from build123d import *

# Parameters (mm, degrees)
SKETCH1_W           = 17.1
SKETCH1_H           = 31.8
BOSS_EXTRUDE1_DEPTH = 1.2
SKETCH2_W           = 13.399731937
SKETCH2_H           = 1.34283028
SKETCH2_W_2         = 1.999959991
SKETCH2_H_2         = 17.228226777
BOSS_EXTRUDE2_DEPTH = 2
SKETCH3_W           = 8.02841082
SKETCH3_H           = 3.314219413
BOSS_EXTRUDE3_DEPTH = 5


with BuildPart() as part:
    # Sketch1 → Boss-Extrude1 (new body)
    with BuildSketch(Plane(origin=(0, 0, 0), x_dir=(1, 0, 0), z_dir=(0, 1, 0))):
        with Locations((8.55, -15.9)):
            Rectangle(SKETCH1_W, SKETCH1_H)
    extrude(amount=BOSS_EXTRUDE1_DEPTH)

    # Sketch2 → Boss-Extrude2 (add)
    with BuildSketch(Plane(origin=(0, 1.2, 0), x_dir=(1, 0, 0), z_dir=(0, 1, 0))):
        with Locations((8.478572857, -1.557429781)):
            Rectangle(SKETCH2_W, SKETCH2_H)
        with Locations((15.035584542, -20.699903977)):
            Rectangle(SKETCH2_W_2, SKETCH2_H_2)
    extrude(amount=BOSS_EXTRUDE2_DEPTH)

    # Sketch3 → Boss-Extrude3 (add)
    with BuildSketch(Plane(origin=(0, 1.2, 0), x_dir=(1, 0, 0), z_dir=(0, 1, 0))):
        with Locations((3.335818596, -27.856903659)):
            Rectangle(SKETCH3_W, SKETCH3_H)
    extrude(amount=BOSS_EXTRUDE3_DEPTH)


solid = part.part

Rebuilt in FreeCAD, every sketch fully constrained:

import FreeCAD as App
import Part
import Sketcher

doc = App.newDocument("Part")
body = doc.addObject("PartDesign::Body", "Body")

# Sketch on XZ plane
sketch1 = body.newObject("Sketcher::SketchObject", "Sketch")
sketch1.AttachmentSupport = (doc.getObject("XZ_Plane"), [""])
sketch1.MapMode = "FlatFace"
sketch1.addGeometry(Part.LineSegment(App.Vector(0, 0, 0), App.Vector(0, 31.8, 0)), False)
sketch1.addGeometry(Part.LineSegment(App.Vector(0, 31.8, 0), App.Vector(17.1, 31.8, 0)), False)
sketch1.addGeometry(Part.LineSegment(App.Vector(17.1, 31.8, 0), App.Vector(17.1, 0, 0)), False)
sketch1.addGeometry(Part.LineSegment(App.Vector(17.1, 0, 0), App.Vector(0, 0, 0)), False)
sketch1.addConstraint(Sketcher.Constraint("Coincident", 0, 2, 1, 1))
sketch1.addConstraint(Sketcher.Constraint("Coincident", 1, 2, 2, 1))
sketch1.addConstraint(Sketcher.Constraint("Coincident", 2, 2, 3, 1))
sketch1.addConstraint(Sketcher.Constraint("Coincident", 3, 2, 0, 1))
sketch1.addConstraint(Sketcher.Constraint("Vertical", 0))
sketch1.addConstraint(Sketcher.Constraint("Horizontal", 1))
sketch1.addConstraint(Sketcher.Constraint("Vertical", 2))
sketch1.addConstraint(Sketcher.Constraint("Horizontal", 3))
sketch1.addConstraint(Sketcher.Constraint("Coincident", 3, 2, -1, 1))
sketch1.addConstraint(Sketcher.Constraint("DistanceX", 1, 1, 1, 2, 17.1))
sketch1.addConstraint(Sketcher.Constraint("DistanceY", 0, 1, 0, 2, 31.8))
pad1 = body.newObject("PartDesign::Pad", "Pad")
pad1.Profile = sketch1
pad1.Length = 1.2
pad1.Reversed = True

# Sketch on XZ plane
sketch2 = body.newObject("Sketcher::SketchObject", "Sketch001")
sketch2.AttachmentSupport = (doc.getObject("XZ_Plane"), [""])
sketch2.MapMode = "FlatFace"
sketch2.AttachmentOffset = App.Placement(App.Vector(0, 0, -1.2), App.Rotation())
sketch2.addGeometry(Part.LineSegment(App.Vector(1.778707, 0.886015, 0), App.Vector(1.778707, 2.228845, 0)), False)
sketch2.addGeometry(Part.LineSegment(App.Vector(1.778707, 2.228845, 0), App.Vector(15.178439, 2.228845, 0)), False)
sketch2.addGeometry(Part.LineSegment(App.Vector(15.178439, 2.228845, 0), App.Vector(15.178439, 0.886015, 0)), False)
sketch2.addGeometry(Part.LineSegment(App.Vector(15.178439, 0.886015, 0), App.Vector(1.778707, 0.886015, 0)), False)
sketch2.addGeometry(Part.LineSegment(App.Vector(14.035605, 12.085791, 0), App.Vector(14.035605, 29.314017, 0)), False)
sketch2.addGeometry(Part.LineSegment(App.Vector(14.035605, 29.314017, 0), App.Vector(16.035565, 29.314017, 0)), False)
sketch2.addGeometry(Part.LineSegment(App.Vector(16.035565, 29.314017, 0), App.Vector(16.035565, 12.085791, 0)), False)
sketch2.addGeometry(Part.LineSegment(App.Vector(16.035565, 12.085791, 0), App.Vector(14.035605, 12.085791, 0)), False)
sketch2.addConstraint(Sketcher.Constraint("Coincident", 0, 2, 1, 1))
sketch2.addConstraint(Sketcher.Constraint("Coincident", 1, 2, 2, 1))
sketch2.addConstraint(Sketcher.Constraint("Coincident", 2, 2, 3, 1))
sketch2.addConstraint(Sketcher.Constraint("Coincident", 3, 2, 0, 1))
sketch2.addConstraint(Sketcher.Constraint("Coincident", 4, 2, 5, 1))
sketch2.addConstraint(Sketcher.Constraint("Coincident", 5, 2, 6, 1))
sketch2.addConstraint(Sketcher.Constraint("Coincident", 6, 2, 7, 1))
sketch2.addConstraint(Sketcher.Constraint("Coincident", 7, 2, 4, 1))
sketch2.addConstraint(Sketcher.Constraint("Vertical", 0))
sketch2.addConstraint(Sketcher.Constraint("Horizontal", 1))
sketch2.addConstraint(Sketcher.Constraint("Vertical", 2))
sketch2.addConstraint(Sketcher.Constraint("Horizontal", 3))
sketch2.addConstraint(Sketcher.Constraint("Vertical", 4))
sketch2.addConstraint(Sketcher.Constraint("Horizontal", 5))
sketch2.addConstraint(Sketcher.Constraint("Vertical", 6))
sketch2.addConstraint(Sketcher.Constraint("Horizontal", 7))
sketch2.addConstraint(Sketcher.Constraint("DistanceX", 1, 1, 1, 2, 13.399732))
sketch2.addConstraint(Sketcher.Constraint("DistanceX", 5, 1, 5, 2, 1.99996))
sketch2.addConstraint(Sketcher.Constraint("DistanceY", 0, 1, 0, 2, 1.34283))
sketch2.addConstraint(Sketcher.Constraint("DistanceY", 4, 1, 4, 2, 17.228227))
sketch2.addConstraint(Sketcher.Constraint("DistanceX", -1, 1, 1, 2, 15.178439))
sketch2.addConstraint(Sketcher.Constraint("DistanceY", -1, 1, 6, 2, 12.085791))
sketch2.addConstraint(Sketcher.Constraint("DistanceY", -1, 1, 0, 2, 2.228845))
sketch2.addConstraint(Sketcher.Constraint("DistanceX", -1, 1, 4, 2, 14.035605))
pad2 = body.newObject("PartDesign::Pad", "Pad001")
pad2.Profile = sketch2
pad2.Length = 2
pad2.Reversed = True

# Sketch on XZ plane
sketch3 = body.newObject("Sketcher::SketchObject", "Sketch002")
sketch3.AttachmentSupport = (doc.getObject("XZ_Plane"), [""])
sketch3.MapMode = "FlatFace"
sketch3.AttachmentOffset = App.Placement(App.Vector(0, 0, -1.2), App.Rotation())
sketch3.addGeometry(Part.LineSegment(App.Vector(-0.678387, 26.199794, 0), App.Vector(-0.678387, 29.514013, 0)), False)
sketch3.addGeometry(Part.LineSegment(App.Vector(-0.678387, 29.514013, 0), App.Vector(7.350024, 29.514013, 0)), False)
sketch3.addGeometry(Part.LineSegment(App.Vector(7.350024, 29.514013, 0), App.Vector(7.350024, 26.199794, 0)), False)
sketch3.addGeometry(Part.LineSegment(App.Vector(7.350024, 26.199794, 0), App.Vector(-0.678387, 26.199794, 0)), False)
sketch3.addConstraint(Sketcher.Constraint("Coincident", 0, 2, 1, 1))
sketch3.addConstraint(Sketcher.Constraint("Coincident", 1, 2, 2, 1))
sketch3.addConstraint(Sketcher.Constraint("Coincident", 2, 2, 3, 1))
sketch3.addConstraint(Sketcher.Constraint("Coincident", 3, 2, 0, 1))
sketch3.addConstraint(Sketcher.Constraint("Vertical", 0))
sketch3.addConstraint(Sketcher.Constraint("Horizontal", 1))
sketch3.addConstraint(Sketcher.Constraint("Vertical", 2))
sketch3.addConstraint(Sketcher.Constraint("Horizontal", 3))
sketch3.addConstraint(Sketcher.Constraint("DistanceX", 1, 1, 1, 2, 8.028411))
sketch3.addConstraint(Sketcher.Constraint("DistanceY", 0, 1, 0, 2, 3.314219))
sketch3.addConstraint(Sketcher.Constraint("DistanceX", 0, 2, -1, 1, 0.678387))
sketch3.addConstraint(Sketcher.Constraint("DistanceY", -1, 1, 0, 2, 29.514013))
pad3 = body.newObject("PartDesign::Pad", "Pad002")
pad3.Profile = sketch3
pad3.Length = 5
pad3.Reversed = True

doc.recompute()
